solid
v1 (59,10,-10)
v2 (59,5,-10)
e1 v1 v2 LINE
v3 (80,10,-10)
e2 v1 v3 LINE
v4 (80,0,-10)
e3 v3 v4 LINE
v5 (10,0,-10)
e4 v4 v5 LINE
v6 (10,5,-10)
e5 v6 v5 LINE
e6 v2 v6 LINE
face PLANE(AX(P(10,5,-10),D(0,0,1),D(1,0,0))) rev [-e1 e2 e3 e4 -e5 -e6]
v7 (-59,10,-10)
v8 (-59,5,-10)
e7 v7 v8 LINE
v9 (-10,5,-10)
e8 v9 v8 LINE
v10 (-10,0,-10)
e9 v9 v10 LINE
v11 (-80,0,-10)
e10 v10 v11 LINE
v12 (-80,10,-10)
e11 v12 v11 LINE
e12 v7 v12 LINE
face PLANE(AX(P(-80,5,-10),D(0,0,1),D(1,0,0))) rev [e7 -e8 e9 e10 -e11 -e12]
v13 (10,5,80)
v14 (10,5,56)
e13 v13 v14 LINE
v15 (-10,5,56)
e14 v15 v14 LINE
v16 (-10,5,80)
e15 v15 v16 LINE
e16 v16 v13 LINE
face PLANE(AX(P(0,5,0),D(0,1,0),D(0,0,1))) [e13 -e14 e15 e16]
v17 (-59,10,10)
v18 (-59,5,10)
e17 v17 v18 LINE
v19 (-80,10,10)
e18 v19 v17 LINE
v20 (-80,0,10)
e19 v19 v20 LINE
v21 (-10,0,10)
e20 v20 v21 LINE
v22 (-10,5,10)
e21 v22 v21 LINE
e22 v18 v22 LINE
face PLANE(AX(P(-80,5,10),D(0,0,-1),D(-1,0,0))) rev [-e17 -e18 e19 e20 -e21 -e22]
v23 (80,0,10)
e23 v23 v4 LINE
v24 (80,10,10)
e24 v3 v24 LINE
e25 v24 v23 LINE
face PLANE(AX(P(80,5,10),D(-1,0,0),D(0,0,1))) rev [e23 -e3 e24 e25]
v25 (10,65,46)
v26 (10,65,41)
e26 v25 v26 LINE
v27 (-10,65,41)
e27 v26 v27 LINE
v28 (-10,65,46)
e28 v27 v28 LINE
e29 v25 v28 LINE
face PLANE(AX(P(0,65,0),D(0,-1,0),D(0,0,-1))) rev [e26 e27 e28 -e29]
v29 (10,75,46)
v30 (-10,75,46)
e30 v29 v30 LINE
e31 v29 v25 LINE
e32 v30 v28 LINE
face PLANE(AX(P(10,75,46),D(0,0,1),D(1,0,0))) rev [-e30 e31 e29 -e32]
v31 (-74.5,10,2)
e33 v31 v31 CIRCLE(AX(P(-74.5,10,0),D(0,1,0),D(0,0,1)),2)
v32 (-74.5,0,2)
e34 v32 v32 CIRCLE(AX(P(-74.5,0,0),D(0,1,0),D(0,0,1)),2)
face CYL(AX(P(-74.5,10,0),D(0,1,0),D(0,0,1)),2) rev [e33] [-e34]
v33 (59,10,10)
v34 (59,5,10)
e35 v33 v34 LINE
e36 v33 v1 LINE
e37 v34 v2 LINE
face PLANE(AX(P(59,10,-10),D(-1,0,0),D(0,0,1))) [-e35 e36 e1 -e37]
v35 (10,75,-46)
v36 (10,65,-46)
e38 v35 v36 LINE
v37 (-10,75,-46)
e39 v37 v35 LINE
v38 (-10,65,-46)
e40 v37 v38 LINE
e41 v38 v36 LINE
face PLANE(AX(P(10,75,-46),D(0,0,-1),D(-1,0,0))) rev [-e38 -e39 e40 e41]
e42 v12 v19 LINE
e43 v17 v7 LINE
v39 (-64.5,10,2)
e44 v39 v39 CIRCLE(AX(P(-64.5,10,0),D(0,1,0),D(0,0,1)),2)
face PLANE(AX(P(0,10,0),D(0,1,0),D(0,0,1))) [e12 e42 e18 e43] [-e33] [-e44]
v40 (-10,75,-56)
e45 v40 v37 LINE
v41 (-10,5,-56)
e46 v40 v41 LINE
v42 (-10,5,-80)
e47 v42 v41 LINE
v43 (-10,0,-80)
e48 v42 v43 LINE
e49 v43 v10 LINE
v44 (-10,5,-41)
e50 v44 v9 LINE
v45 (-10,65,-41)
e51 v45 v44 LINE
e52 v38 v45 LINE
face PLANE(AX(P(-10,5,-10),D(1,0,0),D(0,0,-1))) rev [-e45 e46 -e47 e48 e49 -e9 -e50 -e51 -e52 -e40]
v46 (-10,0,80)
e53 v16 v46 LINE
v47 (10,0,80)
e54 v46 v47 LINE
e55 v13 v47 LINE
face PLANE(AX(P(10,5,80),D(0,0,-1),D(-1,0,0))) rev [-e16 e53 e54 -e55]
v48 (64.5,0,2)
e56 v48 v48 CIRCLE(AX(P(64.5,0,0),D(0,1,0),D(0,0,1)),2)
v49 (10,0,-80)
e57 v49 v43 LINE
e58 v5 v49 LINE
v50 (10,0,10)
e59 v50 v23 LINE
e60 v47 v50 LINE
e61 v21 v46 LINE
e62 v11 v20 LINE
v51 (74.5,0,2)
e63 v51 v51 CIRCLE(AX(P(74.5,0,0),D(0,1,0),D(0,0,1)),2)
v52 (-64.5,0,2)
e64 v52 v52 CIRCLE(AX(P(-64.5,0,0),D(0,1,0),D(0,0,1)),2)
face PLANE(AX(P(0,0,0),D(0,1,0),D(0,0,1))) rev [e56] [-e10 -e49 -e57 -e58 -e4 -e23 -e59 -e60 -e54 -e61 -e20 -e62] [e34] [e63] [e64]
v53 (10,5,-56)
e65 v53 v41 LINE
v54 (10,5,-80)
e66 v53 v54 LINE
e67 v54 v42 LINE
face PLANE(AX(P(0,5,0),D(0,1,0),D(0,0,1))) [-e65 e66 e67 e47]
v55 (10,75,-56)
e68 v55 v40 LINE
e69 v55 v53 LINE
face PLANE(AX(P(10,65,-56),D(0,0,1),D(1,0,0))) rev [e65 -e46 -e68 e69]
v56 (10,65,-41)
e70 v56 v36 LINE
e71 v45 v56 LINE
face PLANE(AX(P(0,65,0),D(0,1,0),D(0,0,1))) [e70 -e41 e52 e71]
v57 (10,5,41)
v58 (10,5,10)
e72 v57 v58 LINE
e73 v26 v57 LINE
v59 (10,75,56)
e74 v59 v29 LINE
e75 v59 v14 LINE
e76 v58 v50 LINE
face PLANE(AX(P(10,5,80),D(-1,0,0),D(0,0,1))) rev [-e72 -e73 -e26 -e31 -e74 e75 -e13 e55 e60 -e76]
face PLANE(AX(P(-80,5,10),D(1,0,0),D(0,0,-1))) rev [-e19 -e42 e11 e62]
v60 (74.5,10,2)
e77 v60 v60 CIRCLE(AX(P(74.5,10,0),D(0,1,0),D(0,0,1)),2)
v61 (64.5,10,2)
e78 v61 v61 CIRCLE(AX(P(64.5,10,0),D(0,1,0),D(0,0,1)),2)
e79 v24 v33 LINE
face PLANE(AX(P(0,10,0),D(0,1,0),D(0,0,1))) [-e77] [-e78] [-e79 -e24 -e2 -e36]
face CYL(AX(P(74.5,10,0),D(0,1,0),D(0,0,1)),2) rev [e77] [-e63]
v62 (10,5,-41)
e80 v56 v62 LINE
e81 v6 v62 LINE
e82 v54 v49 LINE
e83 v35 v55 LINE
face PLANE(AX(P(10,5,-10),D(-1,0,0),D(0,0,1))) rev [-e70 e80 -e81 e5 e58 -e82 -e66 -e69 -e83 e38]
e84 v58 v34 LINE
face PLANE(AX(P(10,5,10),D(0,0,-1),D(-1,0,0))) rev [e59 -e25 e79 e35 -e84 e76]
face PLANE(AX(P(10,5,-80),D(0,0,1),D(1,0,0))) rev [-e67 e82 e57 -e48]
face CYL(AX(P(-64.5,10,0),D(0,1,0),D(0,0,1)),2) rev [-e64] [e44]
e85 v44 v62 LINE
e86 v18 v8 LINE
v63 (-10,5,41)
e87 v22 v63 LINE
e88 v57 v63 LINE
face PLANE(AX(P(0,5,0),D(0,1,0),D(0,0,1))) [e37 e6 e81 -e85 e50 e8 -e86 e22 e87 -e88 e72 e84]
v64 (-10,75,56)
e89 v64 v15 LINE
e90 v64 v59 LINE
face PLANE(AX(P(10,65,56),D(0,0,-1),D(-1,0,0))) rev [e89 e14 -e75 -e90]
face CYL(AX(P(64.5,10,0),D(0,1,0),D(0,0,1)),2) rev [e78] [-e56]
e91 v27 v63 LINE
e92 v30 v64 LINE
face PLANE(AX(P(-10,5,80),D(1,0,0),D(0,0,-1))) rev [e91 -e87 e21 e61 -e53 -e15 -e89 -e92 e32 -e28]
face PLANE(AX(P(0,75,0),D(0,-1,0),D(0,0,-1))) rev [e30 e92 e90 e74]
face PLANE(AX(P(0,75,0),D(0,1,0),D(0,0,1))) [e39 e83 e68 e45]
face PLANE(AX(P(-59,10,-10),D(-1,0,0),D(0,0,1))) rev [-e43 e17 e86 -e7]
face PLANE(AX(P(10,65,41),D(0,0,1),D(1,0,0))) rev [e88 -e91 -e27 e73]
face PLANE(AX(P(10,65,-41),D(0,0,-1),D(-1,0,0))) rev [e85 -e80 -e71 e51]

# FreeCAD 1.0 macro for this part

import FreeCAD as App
import Part
import Sketcher
from FreeCAD import Vector
Q = App.Units.Quantity

doc = App.newDocument("Part")
body = doc.addObject("PartDesign::Body", "Body")

# Sketch on XZ plane
sketch1 = doc.addObject("Sketcher::SketchObject", "Sketch")
body.addObject(sketch1)
sketch1.AttachmentSupport = (doc.XZ_Plane, [""])
sketch1.MapMode = "FlatFace"
sketch1.addGeometry(Part.LineSegment(Vector(-80, 10, 0), Vector(-10, 10, 0)), False)
sketch1.addGeometry(Part.LineSegment(Vector(-10, 10, 0), Vector(-10, 80, 0)), False)
sketch1.addGeometry(Part.LineSegment(Vector(-10, 80, 0), Vector(10, 80, 0)), False)
sketch1.addGeometry(Part.LineSegment(Vector(10, 80, 0), Vector(10, 10, 0)), False)
sketch1.addGeometry(Part.LineSegment(Vector(10, 10, 0), Vector(80, 10, 0)), False)
sketch1.addGeometry(Part.LineSegment(Vector(80, 10, 0), Vector(80, -10, 0)), False)
sketch1.addGeometry(Part.LineSegment(Vector(80, -10, 0), Vector(10, -10, 0)), False)
sketch1.addGeometry(Part.LineSegment(Vector(10, -10, 0), Vector(10, -80, 0)), False)
sketch1.addGeometry(Part.LineSegment(Vector(10, -80, 0), Vector(-10, -80, 0)), False)
sketch1.addGeometry(Part.LineSegment(Vector(-10, -80, 0), Vector(-10, -10, 0)), False)
sketch1.addGeometry(Part.LineSegment(Vector(-10, -10, 0), Vector(-80, -10, 0)), False)
sketch1.addGeometry(Part.LineSegment(Vector(-80, -10, 0), Vector(-80, 10, 0)), False)
sketch1.addConstraint(Sketcher.Constraint("Coincident", 0, 2, 1, 1))
sketch1.addConstraint(Sketcher.Constraint("Coincident", 1, 2, 2, 1))
sketch1.addConstraint(Sketcher.Constraint("Coincident", 2, 2, 3, 1))
sketch1.addConstraint(Sketcher.Constraint("Coincident", 3, 2, 4, 1))
sketch1.addConstraint(Sketcher.Constraint("Coincident", 4, 2, 5, 1))
sketch1.addConstraint(Sketcher.Constraint("Coincident", 5, 2, 6, 1))
sketch1.addConstraint(Sketcher.Constraint("Coincident", 6, 2, 7, 1))
sketch1.addConstraint(Sketcher.Constraint("Coincident", 7, 2, 8, 1))
sketch1.addConstraint(Sketcher.Constraint("Coincident", 8, 2, 9, 1))
sketch1.addConstraint(Sketcher.Constraint("Coincident", 9, 2, 10, 1))
sketch1.addConstraint(Sketcher.Constraint("Coincident", 10, 2, 11, 1))
sketch1.addConstraint(Sketcher.Constraint("Coincident", 11, 2, 0, 1))
sketch1.addConstraint(Sketcher.Constraint("Horizontal", 0))
sketch1.addConstraint(Sketcher.Constraint("Vertical", 1))
sketch1.addConstraint(Sketcher.Constraint("Horizontal", 2))
sketch1.addConstraint(Sketcher.Constraint("Vertical", 3))
sketch1.addConstraint(Sketcher.Constraint("Horizontal", 4))
sketch1.addConstraint(Sketcher.Constraint("Vertical", 5))
sketch1.addConstraint(Sketcher.Constraint("Horizontal", 6))
sketch1.addConstraint(Sketcher.Constraint("Vertical", 7))
sketch1.addConstraint(Sketcher.Constraint("Horizontal", 8))
sketch1.addConstraint(Sketcher.Constraint("Vertical", 9))
sketch1.addConstraint(Sketcher.Constraint("Horizontal", 10))
sketch1.addConstraint(Sketcher.Constraint("Vertical", 11))
sketch1.addConstraint(Sketcher.Constraint("Symmetric", 0, 2, 6, 2, -1, 1))
sketch1.addConstraint(Sketcher.Constraint("Symmetric", 2, 2, 8, 2, -1, 1))
sketch1.addConstraint(Sketcher.Constraint("Symmetric", 4, 2, 10, 2, -1, 1))
sketch1.addConstraint(Sketcher.Constraint("Symmetric", 0, 2, 3, 2, -2))
sketch1.addConstraint(Sketcher.Constraint("Equal", 10, 1))
sketch1.addConstraint(Sketcher.Constraint("Equal", 8, 5))
sketch1.addConstraint(Sketcher.Constraint("DistanceX", 0, 1, 0, 2, Q("70 mm")))
sketch1.addConstraint(Sketcher.Constraint("DistanceX", 2, 1, 2, 2, Q("20 mm")))
pad1 = doc.addObject("PartDesign::Pad", "Pad")
body.addObject(pad1)
pad1.Profile = sketch1
pad1.Length = 5
pad1.Reversed = True

# Sketch on XZ plane
sketch2 = doc.addObject("Sketcher::SketchObject", "Sketch001")
body.addObject(sketch2)
sketch2.AttachmentSupport = (doc.XZ_Plane, [""])
sketch2.MapMode = "FlatFace"
sketch2.AttachmentOffset = App.Placement(Vector(0, 0, -5), App.Rotation())
sketch2.addGeometry(Part.LineSegment(Vector(-80, -10, 0), Vector(-80, 10, 0)), False)
sketch2.addGeometry(Part.LineSegment(Vector(-80, 10, 0), Vector(-59, 10, 0)), False)
sketch2.addGeometry(Part.LineSegment(Vector(-59, 10, 0), Vector(-59, -10, 0)), False)
sketch2.addGeometry(Part.LineSegment(Vector(-59, -10, 0), Vector(-80, -10, 0)), False)
sketch2.addConstraint(Sketcher.Constraint("Coincident", 0, 2, 1, 1))
sketch2.addConstraint(Sketcher.Constraint("Coincident", 1, 2, 2, 1))
sketch2.addConstraint(Sketcher.Constraint("Coincident", 2, 2, 3, 1))
sketch2.addConstraint(Sketcher.Constraint("Coincident", 3, 2, 0, 1))
sketch2.addConstraint(Sketcher.Constraint("Vertical", 0))
sketch2.addConstraint(Sketcher.Constraint("Horizontal", 1))
sketch2.addConstraint(Sketcher.Constraint("Vertical", 2))
sketch2.addConstraint(Sketcher.Constraint("Horizontal", 3))
sketch2.addConstraint(Sketcher.Constraint("DistanceX", 1, 1, 1, 2, Q("21 mm")))
sketch2.addConstraint(Sketcher.Constraint("DistanceY", 0, 1, 0, 2, Q("20 mm")))
sketch2.addConstraint(Sketcher.Constraint("DistanceX", 0, 2, -1, 1, Q("80 mm")))
sketch2.addConstraint(Sketcher.Constraint("DistanceY", -1, 1, 0, 2, Q("10 mm")))
pad2 = doc.addObject("PartDesign::Pad", "Pad001")
body.addObject(pad2)
pad2.Profile = sketch2
pad2.Length = 5
pad2.Reversed = True

# Sketch on YZ plane
sketch3 = doc.addObject("Sketcher::SketchObject", "Sketch002")
body.addObject(sketch3)
sketch3.AttachmentSupport = (doc.YZ_Plane, [""])
sketch3.MapMode = "FlatFace"
sketch3.AttachmentOffset = App.Placement(Vector(0, 0, -64.5), App.Rotation())
sketch3.addGeometry(Part.LineSegment(Vector(-108.8, 0, 0), Vector(10, 0, 0)), False)
sketch3.addGeometry(Part.LineSegment(Vector(10, 0, 0), Vector(10, 2, 0)), False)
sketch3.addGeometry(Part.LineSegment(Vector(10, 2, 0), Vector(-107.6, 2, 0)), False)
sketch3.addGeometry(Part.LineSegment(Vector(-107.6, 2, 0), Vector(-108.8, 0, 0)), False)
sketch3.addConstraint(Sketcher.Constraint("Coincident", 0, 2, 1, 1))
sketch3.addConstraint(Sketcher.Constraint("Coincident", 1, 2, 2, 1))
sketch3.addConstraint(Sketcher.Constraint("Coincident", 2, 2, 3, 1))
sketch3.addConstraint(Sketcher.Constraint("Coincident", 3, 2, 0, 1))
sketch3.addConstraint(Sketcher.Constraint("Horizontal", 0))
sketch3.addConstraint(Sketcher.Constraint("Vertical", 1))
sketch3.addConstraint(Sketcher.Constraint("Horizontal", 2))
sketch3.addConstraint(Sketcher.Constraint("PointOnObject", 0, 2, -1))
sketch3.addConstraint(Sketcher.Constraint("DistanceY", 1, 1, 1, 2, Q("2 mm")))
sketch3.addConstraint(Sketcher.Constraint("Angle", 3, Q("-121 deg")))
sketch3.addConstraint(Sketcher.Constraint("DistanceX", -1, 1, 0, 2, Q("10 mm")))
sketch3.addConstraint(Sketcher.Constraint("DistanceX", 2, 2, 2, 1, Q("117.6291 mm")))
groove = doc.addObject("PartDesign::Groove", "Groove")
body.addObject(groove)
groove.Profile = sketch3
groove.ReferenceAxis = (sketch3, ["H_Axis"])
groove.Angle = 360
doc.recompute()

linearpattern = doc.addObject("PartDesign::LinearPattern", "LinearPattern")
body.addObject(linearpattern)
linearpattern.Originals = [groove]
linearpattern.Direction = (doc.X_Axis, [""])
linearpattern.Mode = "offset"
linearpattern.Offset = 10
linearpattern.Occurrences = 2
linearpattern.Reversed = True
body.Tip = linearpattern
doc.recompute()

mirrored = doc.addObject("PartDesign::Mirrored", "Mirrored")
body.addObject(mirrored)
mirrored.Originals = [pad2, groove]
mirrored.MirrorPlane = (doc.YZ_Plane, [""])
body.Tip = mirrored

# Sketch on YZ plane
sketch4 = doc.addObject("Sketcher::SketchObject", "Sketch003")
body.addObject(sketch4)
sketch4.AttachmentSupport = (doc.YZ_Plane, [""])
sketch4.MapMode = "FlatFace"
sketch4.AttachmentOffset = App.Placement(Vector(0, 0, 74.5), App.Rotation())
sketch4.addGeometry(Part.LineSegment(Vector(10, 0, 0), Vector(-108.8, 0, 0)), False)
sketch4.addGeometry(Part.LineSegment(Vector(-108.8, 0, 0), Vector(-107.6, 2, 0)), False)
sketch4.addGeometry(Part.LineSegment(Vector(-107.6, 2, 0), Vector(10, 2, 0)), False)
sketch4.addGeometry(Part.LineSegment(Vector(10, 2, 0), Vector(10, 0, 0)), False)
sketch4.addConstraint(Sketcher.Constraint("Coincident", 0, 2, 1, 1))
sketch4.addConstraint(Sketcher.Constraint("Coincident", 1, 2, 2, 1))
sketch4.addConstraint(Sketcher.Constraint("Coincident", 2, 2, 3, 1))
sketch4.addConstraint(Sketcher.Constraint("Coincident", 3, 2, 0, 1))
sketch4.addConstraint(Sketcher.Constraint("Horizontal", 0))
sketch4.addConstraint(Sketcher.Constraint("Horizontal", 2))
sketch4.addConstraint(Sketcher.Constraint("Vertical", 3))
sketch4.addConstraint(Sketcher.Constraint("PointOnObject", 0, 2, -1))
sketch4.addConstraint(Sketcher.Constraint("DistanceY", 3, 2, 3, 1, Q("2 mm")))
sketch4.addConstraint(Sketcher.Constraint("Angle", 1, Q("59 deg")))
sketch4.addConstraint(Sketcher.Constraint("DistanceX", -1, 1, 2, 2, Q("10 mm")))
sketch4.addConstraint(Sketcher.Constraint("DistanceX", 2, 1, 2, 2, Q("117.6291 mm")))
groove2 = doc.addObject("PartDesign::Groove", "Groove001")
body.addObject(groove2)
groove2.Profile = sketch4
groove2.ReferenceAxis = (sketch4, ["H_Axis"])
groove2.Angle = 360

# Sketch on XZ plane
sketch5 = doc.addObject("Sketcher::SketchObject", "Sketch004")
body.addObject(sketch5)
sketch5.AttachmentSupport = (doc.XZ_Plane, [""])
sketch5.MapMode = "FlatFace"
sketch5.AttachmentOffset = App.Placement(Vector(0, 0, -5), App.Rotation())
sketch5.addGeometry(Part.LineSegment(Vector(-10, -56, 0), Vector(-10, -41, 0)), False)
sketch5.addGeometry(Part.LineSegment(Vector(-10, -41, 0), Vector(10, -41, 0)), False)
sketch5.addGeometry(Part.LineSegment(Vector(10, -41, 0), Vector(10, -56, 0)), False)
sketch5.addGeometry(Part.LineSegment(Vector(10, -56, 0), Vector(-10, -56, 0)), False)
sketch5.addGeometry(Part.LineSegment(Vector(-10, 41, 0), Vector(-10, 56, 0)), False)
sketch5.addGeometry(Part.LineSegment(Vector(-10, 56, 0), Vector(10, 56, 0)), False)
sketch5.addGeometry(Part.LineSegment(Vector(10, 56, 0), Vector(10, 41, 0)), False)
sketch5.addGeometry(Part.LineSegment(Vector(10, 41, 0), Vector(-10, 41, 0)), False)
sketch5.addConstraint(Sketcher.Constraint("Coincident", 0, 2, 1, 1))
sketch5.addConstraint(Sketcher.Constraint("Coincident", 1, 2, 2, 1))
sketch5.addConstraint(Sketcher.Constraint("Coincident", 2, 2, 3, 1))
sketch5.addConstraint(Sketcher.Constraint("Coincident", 3, 2, 0, 1))
sketch5.addConstraint(Sketcher.Constraint("Coincident", 4, 2, 5, 1))
sketch5.addConstraint(Sketcher.Constraint("Coincident", 5, 2, 6, 1))
sketch5.addConstraint(Sketcher.Constraint("Coincident", 6, 2, 7, 1))
sketch5.addConstraint(Sketcher.Constraint("Coincident", 7, 2, 4, 1))
sketch5.addConstraint(Sketcher.Constraint("Vertical", 0))
sketch5.addConstraint(Sketcher.Constraint("Horizontal", 1))
sketch5.addConstraint(Sketcher.Constraint("Vertical", 2))
sketch5.addConstraint(Sketcher.Constraint("Horizontal", 3))
sketch5.addConstraint(Sketcher.Constraint("Vertical", 4))
sketch5.addConstraint(Sketcher.Constraint("Horizontal", 5))
sketch5.addConstraint(Sketcher.Constraint("Vertical", 6))
sketch5.addConstraint(Sketcher.Constraint("Horizontal", 7))
sketch5.addConstraint(Sketcher.Constraint("Symmetric", 2, 2, 4, 2, -1, 1))
sketch5.addConstraint(Sketcher.Constraint("Symmetric", 0, 2, 6, 2, -1, 1))
sketch5.addConstraint(Sketcher.Constraint("Vertical", 3, 2, 4, 2))
sketch5.addConstraint(Sketcher.Constraint("DistanceX", 1, 1, 1, 2, Q("20 mm")))
sketch5.addConstraint(Sketcher.Constraint("DistanceY", 0, 1, 0, 2, Q("15 mm")))
sketch5.addConstraint(Sketcher.Constraint("DistanceY", 0, 2, -1, 1, Q("41 mm")))
pad3 = doc.addObject("PartDesign::Pad", "Pad002")
body.addObject(pad3)
pad3.Profile = sketch5
pad3.Length = 60
pad3.Reversed = True

# Sketch on XZ plane
sketch6 = doc.addObject("Sketcher::SketchObject", "Sketch005")
body.addObject(sketch6)
sketch6.AttachmentSupport = (doc.XZ_Plane, [""])
sketch6.MapMode = "FlatFace"
sketch6.AttachmentOffset = App.Placement(Vector(0, 0, -65), App.Rotation())
sketch6.addGeometry(Part.LineSegment(Vector(-10, -56, 0), Vector(-10, -46, 0)), False)
sketch6.addGeometry(Part.LineSegment(Vector(-10, -46, 0), Vector(10, -46, 0)), False)
sketch6.addGeometry(Part.LineSegment(Vector(10, -46, 0), Vector(10, -56, 0)), False)
sketch6.addGeometry(Part.LineSegment(Vector(10, -56, 0), Vector(-10, -56, 0)), False)
sketch6.addGeometry(Part.LineSegment(Vector(-10, 46, 0), Vector(-10, 56, 0)), False)
sketch6.addGeometry(Part.LineSegment(Vector(-10, 56, 0), Vector(10, 56, 0)), False)
sketch6.addGeometry(Part.LineSegment(Vector(10, 56, 0), Vector(10, 46, 0)), False)
sketch6.addGeometry(Part.LineSegment(Vector(10, 46, 0), Vector(-10, 46, 0)), False)
sketch6.addConstraint(Sketcher.Constraint("Coincident", 0, 2, 1, 1))
sketch6.addConstraint(Sketcher.Constraint("Coincident", 1, 2, 2, 1))
sketch6.addConstraint(Sketcher.Constraint("Coincident", 2, 2, 3, 1))
sketch6.addConstraint(Sketcher.Constraint("Coincident", 3, 2, 0, 1))
sketch6.addConstraint(Sketcher.Constraint("Coincident", 4, 2, 5, 1))
sketch6.addConstraint(Sketcher.Constraint("Coincident", 5, 2, 6, 1))
sketch6.addConstraint(Sketcher.Constraint("Coincident", 6, 2, 7, 1))
sketch6.addConstraint(Sketcher.Constraint("Coincident", 7, 2, 4, 1))
sketch6.addConstraint(Sketcher.Constraint("Vertical", 0))
sketch6.addConstraint(Sketcher.Constraint("Horizontal", 1))
sketch6.addConstraint(Sketcher.Constraint("Vertical", 2))
sketch6.addConstraint(Sketcher.Constraint("Horizontal", 3))
sketch6.addConstraint(Sketcher.Constraint("Vertical", 4))
sketch6.addConstraint(Sketcher.Constraint("Horizontal", 5))
sketch6.addConstraint(Sketcher.Constraint("Vertical", 6))
sketch6.addConstraint(Sketcher.Constraint("Horizontal", 7))
sketch6.addConstraint(Sketcher.Constraint("Symmetric", 2, 2, 4, 2, -1, 1))
sketch6.addConstraint(Sketcher.Constraint("Symmetric", 0, 2, 6, 2, -1, 1))
sketch6.addConstraint(Sketcher.Constraint("Vertical", 3, 2, 4, 2))
sketch6.addConstraint(Sketcher.Constraint("DistanceX", 1, 1, 1, 2, Q("20 mm")))
sketch6.addConstraint(Sketcher.Constraint("DistanceY", 0, 1, 0, 2, Q("10 mm")))
sketch6.addConstraint(Sketcher.Constraint("DistanceY", 0, 2, -1, 1, Q("46 mm")))
pad4 = doc.addObject("PartDesign::Pad", "Pad003")
body.addObject(pad4)
pad4.Profile = sketch6
pad4.Length = 10
pad4.Reversed = True

doc.recompute()
